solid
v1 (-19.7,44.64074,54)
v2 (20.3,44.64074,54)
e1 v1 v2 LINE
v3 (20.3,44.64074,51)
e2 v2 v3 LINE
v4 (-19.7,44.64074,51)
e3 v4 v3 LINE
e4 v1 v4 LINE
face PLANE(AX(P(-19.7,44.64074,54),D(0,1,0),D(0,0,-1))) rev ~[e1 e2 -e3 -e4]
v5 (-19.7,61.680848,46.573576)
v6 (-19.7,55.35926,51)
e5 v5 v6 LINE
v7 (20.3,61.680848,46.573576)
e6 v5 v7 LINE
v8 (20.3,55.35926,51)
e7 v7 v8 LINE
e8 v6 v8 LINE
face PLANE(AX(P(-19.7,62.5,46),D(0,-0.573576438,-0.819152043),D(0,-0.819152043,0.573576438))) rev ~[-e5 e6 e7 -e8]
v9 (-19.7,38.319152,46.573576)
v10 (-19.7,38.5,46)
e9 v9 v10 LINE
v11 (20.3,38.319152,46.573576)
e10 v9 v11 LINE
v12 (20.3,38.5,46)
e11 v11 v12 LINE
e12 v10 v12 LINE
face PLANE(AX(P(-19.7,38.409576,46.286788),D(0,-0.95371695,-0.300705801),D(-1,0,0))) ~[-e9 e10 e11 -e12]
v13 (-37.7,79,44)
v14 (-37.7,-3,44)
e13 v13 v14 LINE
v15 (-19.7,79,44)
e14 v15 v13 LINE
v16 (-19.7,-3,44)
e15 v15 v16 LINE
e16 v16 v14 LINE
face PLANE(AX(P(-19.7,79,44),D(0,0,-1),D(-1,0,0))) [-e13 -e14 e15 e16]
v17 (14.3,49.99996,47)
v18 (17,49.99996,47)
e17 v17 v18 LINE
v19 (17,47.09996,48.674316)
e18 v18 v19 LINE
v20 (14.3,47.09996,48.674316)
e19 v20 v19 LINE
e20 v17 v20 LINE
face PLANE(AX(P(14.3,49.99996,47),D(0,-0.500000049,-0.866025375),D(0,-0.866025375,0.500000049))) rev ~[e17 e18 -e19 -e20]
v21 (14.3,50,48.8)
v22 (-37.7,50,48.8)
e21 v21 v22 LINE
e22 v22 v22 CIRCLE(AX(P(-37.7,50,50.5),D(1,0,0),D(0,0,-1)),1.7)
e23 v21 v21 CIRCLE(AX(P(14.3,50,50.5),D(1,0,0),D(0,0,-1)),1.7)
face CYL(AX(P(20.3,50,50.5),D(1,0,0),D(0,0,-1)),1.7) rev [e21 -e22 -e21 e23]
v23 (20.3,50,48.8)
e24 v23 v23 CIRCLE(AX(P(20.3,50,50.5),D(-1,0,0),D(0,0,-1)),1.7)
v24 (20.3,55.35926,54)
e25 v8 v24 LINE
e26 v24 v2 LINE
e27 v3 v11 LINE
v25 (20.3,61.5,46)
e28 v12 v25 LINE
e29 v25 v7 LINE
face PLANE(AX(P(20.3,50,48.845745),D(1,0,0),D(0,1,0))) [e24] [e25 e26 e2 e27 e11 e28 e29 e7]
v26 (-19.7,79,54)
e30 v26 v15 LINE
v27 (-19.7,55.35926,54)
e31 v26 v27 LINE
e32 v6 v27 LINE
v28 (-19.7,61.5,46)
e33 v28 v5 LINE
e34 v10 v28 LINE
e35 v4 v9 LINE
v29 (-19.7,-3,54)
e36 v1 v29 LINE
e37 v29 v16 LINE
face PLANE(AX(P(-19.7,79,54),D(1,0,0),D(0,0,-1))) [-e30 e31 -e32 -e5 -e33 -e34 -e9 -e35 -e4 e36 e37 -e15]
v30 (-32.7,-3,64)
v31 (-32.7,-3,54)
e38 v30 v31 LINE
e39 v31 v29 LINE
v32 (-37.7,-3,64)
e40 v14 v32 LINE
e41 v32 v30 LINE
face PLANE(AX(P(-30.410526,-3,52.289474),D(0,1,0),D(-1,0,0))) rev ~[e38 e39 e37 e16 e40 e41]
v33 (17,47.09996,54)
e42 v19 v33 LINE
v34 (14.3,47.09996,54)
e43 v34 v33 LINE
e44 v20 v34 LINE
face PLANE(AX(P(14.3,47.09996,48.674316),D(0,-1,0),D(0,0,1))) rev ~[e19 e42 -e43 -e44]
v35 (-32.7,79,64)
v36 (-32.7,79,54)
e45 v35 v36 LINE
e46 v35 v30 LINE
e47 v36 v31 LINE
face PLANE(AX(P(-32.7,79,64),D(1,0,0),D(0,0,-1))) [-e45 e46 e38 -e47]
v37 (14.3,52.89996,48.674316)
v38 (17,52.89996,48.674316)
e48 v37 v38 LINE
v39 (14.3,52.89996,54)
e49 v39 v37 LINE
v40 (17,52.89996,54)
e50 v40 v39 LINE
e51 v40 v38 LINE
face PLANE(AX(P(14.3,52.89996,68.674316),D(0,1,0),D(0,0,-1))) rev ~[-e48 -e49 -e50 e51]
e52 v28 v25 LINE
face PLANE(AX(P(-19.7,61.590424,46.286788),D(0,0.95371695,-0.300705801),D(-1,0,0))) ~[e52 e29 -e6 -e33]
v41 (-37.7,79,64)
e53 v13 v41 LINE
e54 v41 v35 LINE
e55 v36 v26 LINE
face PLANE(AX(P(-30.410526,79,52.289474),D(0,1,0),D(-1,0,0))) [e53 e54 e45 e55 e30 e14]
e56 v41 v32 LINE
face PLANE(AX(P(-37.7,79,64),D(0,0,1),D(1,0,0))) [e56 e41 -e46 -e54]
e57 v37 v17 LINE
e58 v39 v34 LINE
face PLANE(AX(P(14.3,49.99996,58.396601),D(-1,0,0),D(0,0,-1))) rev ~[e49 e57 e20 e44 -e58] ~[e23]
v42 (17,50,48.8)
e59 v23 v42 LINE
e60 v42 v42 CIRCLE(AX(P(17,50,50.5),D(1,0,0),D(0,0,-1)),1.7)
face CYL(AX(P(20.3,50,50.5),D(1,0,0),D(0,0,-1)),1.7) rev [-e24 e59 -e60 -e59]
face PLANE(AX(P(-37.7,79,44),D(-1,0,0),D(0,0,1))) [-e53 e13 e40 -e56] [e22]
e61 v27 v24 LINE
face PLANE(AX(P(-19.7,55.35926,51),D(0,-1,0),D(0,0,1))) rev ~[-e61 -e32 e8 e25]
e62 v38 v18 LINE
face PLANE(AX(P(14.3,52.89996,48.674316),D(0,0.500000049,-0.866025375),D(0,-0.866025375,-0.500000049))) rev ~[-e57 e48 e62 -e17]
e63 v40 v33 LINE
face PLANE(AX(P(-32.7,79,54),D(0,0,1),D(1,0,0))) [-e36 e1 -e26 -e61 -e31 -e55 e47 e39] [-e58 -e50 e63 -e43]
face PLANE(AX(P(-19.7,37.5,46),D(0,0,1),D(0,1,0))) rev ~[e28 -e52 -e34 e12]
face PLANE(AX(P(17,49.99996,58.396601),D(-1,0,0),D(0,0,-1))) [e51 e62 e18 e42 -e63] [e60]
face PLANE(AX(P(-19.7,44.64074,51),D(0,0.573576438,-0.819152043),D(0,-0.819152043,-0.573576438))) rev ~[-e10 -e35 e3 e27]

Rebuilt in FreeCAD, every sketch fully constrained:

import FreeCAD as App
import Part
import Sketcher
Q = App.Units.Quantity


def edges_at(feature, points):
    """Names of the edges that pass closest to the given points."""
    edges = feature.Shape.Edges
    near = lambda p: min(range(len(edges)), key=lambda i: edges[i].distToShape(Part.Vertex(*p))[0])
    return sorted({f"Edge{near(p) + 1}" for p in points})


def add_polygon(sketch, points):
    """Adds a closed chain of lines whose ends are joined by coincident constraints."""
    first, n = sketch.GeometryCount, len(points)
    for a, b in zip(points, points[1:] + points[:1]):
        sketch.addGeometry(Part.LineSegment(App.Vector(*a, 0), App.Vector(*b, 0)), False)
    for i in range(n):
        sketch.addConstraint(Sketcher.Constraint("Coincident", first + i, 2, first + (i + 1) % n, 1))

doc = App.newDocument("Part")
params = doc.addObject("Spreadsheet::Sheet", "Params")
for row, (alias, value) in enumerate([
    ("sketch1_height", "20 mm"),
    ("sketch1_width", "5.8 mm"),
    ("pad1_length", "2.7 mm"),
    ("sketch2_diameter", "3.4 mm"),
    ("pad2_length", "100 mm"),
    ("sketch3_width", "18 mm"),
    ("sketch3_width2", "13 mm"),
    ("sketch3_height", "20 mm"),
    ("pad3_length", "82 mm"),
    ("sketch4_width", "25 mm"),
    ("sketch4_height", "3 mm"),
    ("pad4_length", "40 mm"),
    ("chamfer_size", "1 mm"),
], start=1):
    params.set(f"A{row}", alias)
    params.set(f"B{row}", "=" + value)
    params.setAlias(f"B{row}", alias)

body = doc.addObject("PartDesign::Body", "Body")

sketch1 = body.newObject("Sketcher::SketchObject", "Sketch")
sketch1.AttachmentSupport = (doc.getObject("YZ_Plane"), [""])
sketch1.MapMode = "FlatFace"
sketch1.AttachmentOffset = App.Placement(App.Vector(0, 0, 65), App.Rotation())
add_polygon(sketch1, [(32.9, 3.2), (30, 1.5), (27.1, 3.2), (27.1, 23.2), (32.9, 23.2)])
sketch1.addConstraint([
    Sketcher.Constraint("Vertical", 2),
    Sketcher.Constraint("Horizontal", 3),
    Sketcher.Constraint("Vertical", 4),
    Sketcher.Constraint("Horizontal", 1, 2, 4, 2),
    Sketcher.Constraint("Equal", 0, 1),
    Sketcher.Constraint("DistanceY", 2, 1, 2, 2, Q("20 mm")),
    Sketcher.Constraint("Angle", 0, Q("-149.999997 deg")),
    Sketcher.Constraint("DistanceX", 3, 1, 3, 2, Q("5.8 mm")),
    Sketcher.Constraint("DistanceX", -1, 1, 0, 2, Q("30 mm")),
    Sketcher.Constraint("DistanceY", -1, 1, 0, 2, Q("1.5 mm")),
])
sketch1.setExpression("Constraints[10]", "Params.sketch1_height")
sketch1.setExpression("Constraints[12]", "Params.sketch1_width")
pad1 = body.newObject("PartDesign::Pad", "Pad")
pad1.Profile = sketch1
pad1.setExpression("Length", "Params.pad1_length")
pad1.Reversed = True
body2 = doc.addObject("PartDesign::Body", "Body001")
doc.recompute()

body.Placement = App.Placement(App.Vector(-117, -0.99996, 1.5), App.Rotation(App.Vector(0, 0, 1), 0))
boolean = body2.newObject("PartDesign::Boolean", "Boolean")
boolean.Type = "Fuse"
boolean.addObjects([body])
body3 = doc.addObject("PartDesign::Body", "Body002")

sketch2 = body3.newObject("Sketcher::SketchObject", "Sketch001")
sketch2.AttachmentSupport = (doc.getObject("XY_Plane002"), [""])
sketch2.MapMode = "FlatFace"
sketch2.addGeometry(Part.Circle(App.Vector(0, 0, 0), App.Vector(0, 0, 1), 1.7), False)
sketch2.addConstraint([
    Sketcher.Constraint("Coincident", 0, 3, -1, 1),
    Sketcher.Constraint("Diameter", 0, Q("3.4 mm")),
])
sketch2.setExpression("Constraints[1]", "Params.sketch2_diameter")
pad2 = body3.newObject("PartDesign::Pad", "Pad001")
pad2.Profile = sketch2
pad2.setExpression("Length", "Params.pad2_length")
body4 = doc.addObject("PartDesign::Body", "Body003")
doc.recompute()

body3.Placement = App.Placement(App.Vector(0, 0, 0), App.Rotation(App.Vector(0, 1, 0), 90))
boolean2 = body4.newObject("PartDesign::Boolean", "Boolean001")
boolean2.Type = "Fuse"
boolean2.addObjects([body3])
body5 = doc.addObject("PartDesign::Body", "Body004")
doc.recompute()

body4.Placement = App.Placement(App.Vector(-58, 29, 6.5), App.Rotation(App.Vector(0, 0, 1), 0))
boolean3 = body5.newObject("PartDesign::Boolean", "Boolean002")
boolean3.Type = "Fuse"
boolean3.addObjects([body4])
doc.recompute()

boolean4 = body5.newObject("PartDesign::Boolean", "Boolean003")
boolean4.Type = "Fuse"
boolean4.addObjects([body2])
body6 = doc.addObject("PartDesign::Body", "Body005")

sketch3 = body6.newObject("Sketcher::SketchObject", "Sketch002")
sketch3.AttachmentSupport = (doc.getObject("XZ_Plane005"), [""])
sketch3.MapMode = "FlatFace"
add_polygon(sketch3, [(0, 20), (0, 0), (-18, 0), (-18, 10), (-5, 10), (-5, 20)])
sketch3.addConstraint([
    Sketcher.Constraint("Vertical", 0),
    Sketcher.Constraint("Horizontal", 1),
    Sketcher.Constraint("Vertical", 2),
    Sketcher.Constraint("Horizontal", 3),
    Sketcher.Constraint("Vertical", 4),
    Sketcher.Constraint("Horizontal", 5),
    Sketcher.Constraint("Coincident", 0, 2, -1, 1),
    Sketcher.Constraint("Equal", 2, 4),
    Sketcher.Constraint("DistanceX", 1, 2, 1, 1, Q("18 mm")),
    Sketcher.Constraint("DistanceX", 3, 1, 3, 2, Q("13 mm")),
    Sketcher.Constraint("DistanceY", 0, 2, 0, 1, Q("20 mm")),
])
sketch3.setExpression("Constraints[14]", "Params.sketch3_width")
sketch3.setExpression("Constraints[15]", "Params.sketch3_width2")
sketch3.setExpression("Constraints[16]", "Params.sketch3_height")
pad3 = body6.newObject("PartDesign::Pad", "Pad002")
pad3.Profile = sketch3
pad3.setExpression("Length", "Params.pad3_length")
pad3.Reversed = True
body7 = doc.addObject("PartDesign::Body", "Body006")

sketch4 = body7.newObject("Sketcher::SketchObject", "Sketch003")
sketch4.AttachmentSupport = (doc.getObject("YZ_Plane006"), [""])
sketch4.MapMode = "FlatFace"
sketch4.AttachmentOffset = App.Placement(App.Vector(0, 0, -18), App.Rotation())
add_polygon(sketch4, [(23.6, 7), (16.5, 2), (41.5, 2), (34.4, 7), (34.4, 10), (23.6, 10)])
sketch4.addConstraint([
    Sketcher.Constraint("Horizontal", 1),
    Sketcher.Constraint("Vertical", 3),
    Sketcher.Constraint("Horizontal", 4),
    Sketcher.Constraint("Vertical", 5),
    Sketcher.Constraint("Horizontal", 2, 2, 5, 2),
    Sketcher.Constraint("Equal", 0, 2),
    Sketcher.Constraint("DistanceX", 1, 1, 1, 2, Q("25 mm")),
    Sketcher.Constraint("DistanceY", 3, 1, 3, 2, Q("3 mm")),
    Sketcher.Constraint("Angle", 0, Q("-145 deg")),
    Sketcher.Constraint("DistanceY", -1, 1, 0, 2, Q("2 mm")),
    Sketcher.Constraint("DistanceY", -1, 1, 2, 2, Q("7 mm")),
    Sketcher.Constraint("DistanceX", -1, 1, 0, 2, Q("16.5 mm")),
])
sketch4.setExpression("Constraints[12]", "Params.sketch4_width")
sketch4.setExpression("Constraints[13]", "Params.sketch4_height")
pad4 = body7.newObject("PartDesign::Pad", "Pad003")
pad4.Profile = sketch4
pad4.setExpression("Length", "Params.pad4_length")
pad4.Reversed = True
doc.recompute()

boolean5 = body7.newObject("PartDesign::Boolean", "Boolean004")
boolean5.Type = "Fuse"
boolean5.addObjects([body6])
doc.recompute()

boolean6 = body7.newObject("PartDesign::Boolean", "Boolean005")
boolean6.Type = "Cut"
boolean6.addObjects([body5])
doc.recompute()

chamfer = body7.newObject("PartDesign::Chamfer", "Chamfer")
chamfer.Base = (boolean6, edges_at(boolean6, [(-38, 16.5, 2), (-38, 41.5, 2)]))
chamfer.setExpression("Size", "Params.chamfer_size")
body8 = doc.addObject("PartDesign::Body", "Body007")
doc.recompute()

body7.Placement = App.Placement(App.Vector(-37.7, 79, 44), App.Rotation(App.Vector(0, 0, 1), 180))
boolean7 = body8.newObject("PartDesign::Boolean", "Boolean006")
boolean7.Type = "Fuse"
boolean7.addObjects([body7])

doc.recompute()
